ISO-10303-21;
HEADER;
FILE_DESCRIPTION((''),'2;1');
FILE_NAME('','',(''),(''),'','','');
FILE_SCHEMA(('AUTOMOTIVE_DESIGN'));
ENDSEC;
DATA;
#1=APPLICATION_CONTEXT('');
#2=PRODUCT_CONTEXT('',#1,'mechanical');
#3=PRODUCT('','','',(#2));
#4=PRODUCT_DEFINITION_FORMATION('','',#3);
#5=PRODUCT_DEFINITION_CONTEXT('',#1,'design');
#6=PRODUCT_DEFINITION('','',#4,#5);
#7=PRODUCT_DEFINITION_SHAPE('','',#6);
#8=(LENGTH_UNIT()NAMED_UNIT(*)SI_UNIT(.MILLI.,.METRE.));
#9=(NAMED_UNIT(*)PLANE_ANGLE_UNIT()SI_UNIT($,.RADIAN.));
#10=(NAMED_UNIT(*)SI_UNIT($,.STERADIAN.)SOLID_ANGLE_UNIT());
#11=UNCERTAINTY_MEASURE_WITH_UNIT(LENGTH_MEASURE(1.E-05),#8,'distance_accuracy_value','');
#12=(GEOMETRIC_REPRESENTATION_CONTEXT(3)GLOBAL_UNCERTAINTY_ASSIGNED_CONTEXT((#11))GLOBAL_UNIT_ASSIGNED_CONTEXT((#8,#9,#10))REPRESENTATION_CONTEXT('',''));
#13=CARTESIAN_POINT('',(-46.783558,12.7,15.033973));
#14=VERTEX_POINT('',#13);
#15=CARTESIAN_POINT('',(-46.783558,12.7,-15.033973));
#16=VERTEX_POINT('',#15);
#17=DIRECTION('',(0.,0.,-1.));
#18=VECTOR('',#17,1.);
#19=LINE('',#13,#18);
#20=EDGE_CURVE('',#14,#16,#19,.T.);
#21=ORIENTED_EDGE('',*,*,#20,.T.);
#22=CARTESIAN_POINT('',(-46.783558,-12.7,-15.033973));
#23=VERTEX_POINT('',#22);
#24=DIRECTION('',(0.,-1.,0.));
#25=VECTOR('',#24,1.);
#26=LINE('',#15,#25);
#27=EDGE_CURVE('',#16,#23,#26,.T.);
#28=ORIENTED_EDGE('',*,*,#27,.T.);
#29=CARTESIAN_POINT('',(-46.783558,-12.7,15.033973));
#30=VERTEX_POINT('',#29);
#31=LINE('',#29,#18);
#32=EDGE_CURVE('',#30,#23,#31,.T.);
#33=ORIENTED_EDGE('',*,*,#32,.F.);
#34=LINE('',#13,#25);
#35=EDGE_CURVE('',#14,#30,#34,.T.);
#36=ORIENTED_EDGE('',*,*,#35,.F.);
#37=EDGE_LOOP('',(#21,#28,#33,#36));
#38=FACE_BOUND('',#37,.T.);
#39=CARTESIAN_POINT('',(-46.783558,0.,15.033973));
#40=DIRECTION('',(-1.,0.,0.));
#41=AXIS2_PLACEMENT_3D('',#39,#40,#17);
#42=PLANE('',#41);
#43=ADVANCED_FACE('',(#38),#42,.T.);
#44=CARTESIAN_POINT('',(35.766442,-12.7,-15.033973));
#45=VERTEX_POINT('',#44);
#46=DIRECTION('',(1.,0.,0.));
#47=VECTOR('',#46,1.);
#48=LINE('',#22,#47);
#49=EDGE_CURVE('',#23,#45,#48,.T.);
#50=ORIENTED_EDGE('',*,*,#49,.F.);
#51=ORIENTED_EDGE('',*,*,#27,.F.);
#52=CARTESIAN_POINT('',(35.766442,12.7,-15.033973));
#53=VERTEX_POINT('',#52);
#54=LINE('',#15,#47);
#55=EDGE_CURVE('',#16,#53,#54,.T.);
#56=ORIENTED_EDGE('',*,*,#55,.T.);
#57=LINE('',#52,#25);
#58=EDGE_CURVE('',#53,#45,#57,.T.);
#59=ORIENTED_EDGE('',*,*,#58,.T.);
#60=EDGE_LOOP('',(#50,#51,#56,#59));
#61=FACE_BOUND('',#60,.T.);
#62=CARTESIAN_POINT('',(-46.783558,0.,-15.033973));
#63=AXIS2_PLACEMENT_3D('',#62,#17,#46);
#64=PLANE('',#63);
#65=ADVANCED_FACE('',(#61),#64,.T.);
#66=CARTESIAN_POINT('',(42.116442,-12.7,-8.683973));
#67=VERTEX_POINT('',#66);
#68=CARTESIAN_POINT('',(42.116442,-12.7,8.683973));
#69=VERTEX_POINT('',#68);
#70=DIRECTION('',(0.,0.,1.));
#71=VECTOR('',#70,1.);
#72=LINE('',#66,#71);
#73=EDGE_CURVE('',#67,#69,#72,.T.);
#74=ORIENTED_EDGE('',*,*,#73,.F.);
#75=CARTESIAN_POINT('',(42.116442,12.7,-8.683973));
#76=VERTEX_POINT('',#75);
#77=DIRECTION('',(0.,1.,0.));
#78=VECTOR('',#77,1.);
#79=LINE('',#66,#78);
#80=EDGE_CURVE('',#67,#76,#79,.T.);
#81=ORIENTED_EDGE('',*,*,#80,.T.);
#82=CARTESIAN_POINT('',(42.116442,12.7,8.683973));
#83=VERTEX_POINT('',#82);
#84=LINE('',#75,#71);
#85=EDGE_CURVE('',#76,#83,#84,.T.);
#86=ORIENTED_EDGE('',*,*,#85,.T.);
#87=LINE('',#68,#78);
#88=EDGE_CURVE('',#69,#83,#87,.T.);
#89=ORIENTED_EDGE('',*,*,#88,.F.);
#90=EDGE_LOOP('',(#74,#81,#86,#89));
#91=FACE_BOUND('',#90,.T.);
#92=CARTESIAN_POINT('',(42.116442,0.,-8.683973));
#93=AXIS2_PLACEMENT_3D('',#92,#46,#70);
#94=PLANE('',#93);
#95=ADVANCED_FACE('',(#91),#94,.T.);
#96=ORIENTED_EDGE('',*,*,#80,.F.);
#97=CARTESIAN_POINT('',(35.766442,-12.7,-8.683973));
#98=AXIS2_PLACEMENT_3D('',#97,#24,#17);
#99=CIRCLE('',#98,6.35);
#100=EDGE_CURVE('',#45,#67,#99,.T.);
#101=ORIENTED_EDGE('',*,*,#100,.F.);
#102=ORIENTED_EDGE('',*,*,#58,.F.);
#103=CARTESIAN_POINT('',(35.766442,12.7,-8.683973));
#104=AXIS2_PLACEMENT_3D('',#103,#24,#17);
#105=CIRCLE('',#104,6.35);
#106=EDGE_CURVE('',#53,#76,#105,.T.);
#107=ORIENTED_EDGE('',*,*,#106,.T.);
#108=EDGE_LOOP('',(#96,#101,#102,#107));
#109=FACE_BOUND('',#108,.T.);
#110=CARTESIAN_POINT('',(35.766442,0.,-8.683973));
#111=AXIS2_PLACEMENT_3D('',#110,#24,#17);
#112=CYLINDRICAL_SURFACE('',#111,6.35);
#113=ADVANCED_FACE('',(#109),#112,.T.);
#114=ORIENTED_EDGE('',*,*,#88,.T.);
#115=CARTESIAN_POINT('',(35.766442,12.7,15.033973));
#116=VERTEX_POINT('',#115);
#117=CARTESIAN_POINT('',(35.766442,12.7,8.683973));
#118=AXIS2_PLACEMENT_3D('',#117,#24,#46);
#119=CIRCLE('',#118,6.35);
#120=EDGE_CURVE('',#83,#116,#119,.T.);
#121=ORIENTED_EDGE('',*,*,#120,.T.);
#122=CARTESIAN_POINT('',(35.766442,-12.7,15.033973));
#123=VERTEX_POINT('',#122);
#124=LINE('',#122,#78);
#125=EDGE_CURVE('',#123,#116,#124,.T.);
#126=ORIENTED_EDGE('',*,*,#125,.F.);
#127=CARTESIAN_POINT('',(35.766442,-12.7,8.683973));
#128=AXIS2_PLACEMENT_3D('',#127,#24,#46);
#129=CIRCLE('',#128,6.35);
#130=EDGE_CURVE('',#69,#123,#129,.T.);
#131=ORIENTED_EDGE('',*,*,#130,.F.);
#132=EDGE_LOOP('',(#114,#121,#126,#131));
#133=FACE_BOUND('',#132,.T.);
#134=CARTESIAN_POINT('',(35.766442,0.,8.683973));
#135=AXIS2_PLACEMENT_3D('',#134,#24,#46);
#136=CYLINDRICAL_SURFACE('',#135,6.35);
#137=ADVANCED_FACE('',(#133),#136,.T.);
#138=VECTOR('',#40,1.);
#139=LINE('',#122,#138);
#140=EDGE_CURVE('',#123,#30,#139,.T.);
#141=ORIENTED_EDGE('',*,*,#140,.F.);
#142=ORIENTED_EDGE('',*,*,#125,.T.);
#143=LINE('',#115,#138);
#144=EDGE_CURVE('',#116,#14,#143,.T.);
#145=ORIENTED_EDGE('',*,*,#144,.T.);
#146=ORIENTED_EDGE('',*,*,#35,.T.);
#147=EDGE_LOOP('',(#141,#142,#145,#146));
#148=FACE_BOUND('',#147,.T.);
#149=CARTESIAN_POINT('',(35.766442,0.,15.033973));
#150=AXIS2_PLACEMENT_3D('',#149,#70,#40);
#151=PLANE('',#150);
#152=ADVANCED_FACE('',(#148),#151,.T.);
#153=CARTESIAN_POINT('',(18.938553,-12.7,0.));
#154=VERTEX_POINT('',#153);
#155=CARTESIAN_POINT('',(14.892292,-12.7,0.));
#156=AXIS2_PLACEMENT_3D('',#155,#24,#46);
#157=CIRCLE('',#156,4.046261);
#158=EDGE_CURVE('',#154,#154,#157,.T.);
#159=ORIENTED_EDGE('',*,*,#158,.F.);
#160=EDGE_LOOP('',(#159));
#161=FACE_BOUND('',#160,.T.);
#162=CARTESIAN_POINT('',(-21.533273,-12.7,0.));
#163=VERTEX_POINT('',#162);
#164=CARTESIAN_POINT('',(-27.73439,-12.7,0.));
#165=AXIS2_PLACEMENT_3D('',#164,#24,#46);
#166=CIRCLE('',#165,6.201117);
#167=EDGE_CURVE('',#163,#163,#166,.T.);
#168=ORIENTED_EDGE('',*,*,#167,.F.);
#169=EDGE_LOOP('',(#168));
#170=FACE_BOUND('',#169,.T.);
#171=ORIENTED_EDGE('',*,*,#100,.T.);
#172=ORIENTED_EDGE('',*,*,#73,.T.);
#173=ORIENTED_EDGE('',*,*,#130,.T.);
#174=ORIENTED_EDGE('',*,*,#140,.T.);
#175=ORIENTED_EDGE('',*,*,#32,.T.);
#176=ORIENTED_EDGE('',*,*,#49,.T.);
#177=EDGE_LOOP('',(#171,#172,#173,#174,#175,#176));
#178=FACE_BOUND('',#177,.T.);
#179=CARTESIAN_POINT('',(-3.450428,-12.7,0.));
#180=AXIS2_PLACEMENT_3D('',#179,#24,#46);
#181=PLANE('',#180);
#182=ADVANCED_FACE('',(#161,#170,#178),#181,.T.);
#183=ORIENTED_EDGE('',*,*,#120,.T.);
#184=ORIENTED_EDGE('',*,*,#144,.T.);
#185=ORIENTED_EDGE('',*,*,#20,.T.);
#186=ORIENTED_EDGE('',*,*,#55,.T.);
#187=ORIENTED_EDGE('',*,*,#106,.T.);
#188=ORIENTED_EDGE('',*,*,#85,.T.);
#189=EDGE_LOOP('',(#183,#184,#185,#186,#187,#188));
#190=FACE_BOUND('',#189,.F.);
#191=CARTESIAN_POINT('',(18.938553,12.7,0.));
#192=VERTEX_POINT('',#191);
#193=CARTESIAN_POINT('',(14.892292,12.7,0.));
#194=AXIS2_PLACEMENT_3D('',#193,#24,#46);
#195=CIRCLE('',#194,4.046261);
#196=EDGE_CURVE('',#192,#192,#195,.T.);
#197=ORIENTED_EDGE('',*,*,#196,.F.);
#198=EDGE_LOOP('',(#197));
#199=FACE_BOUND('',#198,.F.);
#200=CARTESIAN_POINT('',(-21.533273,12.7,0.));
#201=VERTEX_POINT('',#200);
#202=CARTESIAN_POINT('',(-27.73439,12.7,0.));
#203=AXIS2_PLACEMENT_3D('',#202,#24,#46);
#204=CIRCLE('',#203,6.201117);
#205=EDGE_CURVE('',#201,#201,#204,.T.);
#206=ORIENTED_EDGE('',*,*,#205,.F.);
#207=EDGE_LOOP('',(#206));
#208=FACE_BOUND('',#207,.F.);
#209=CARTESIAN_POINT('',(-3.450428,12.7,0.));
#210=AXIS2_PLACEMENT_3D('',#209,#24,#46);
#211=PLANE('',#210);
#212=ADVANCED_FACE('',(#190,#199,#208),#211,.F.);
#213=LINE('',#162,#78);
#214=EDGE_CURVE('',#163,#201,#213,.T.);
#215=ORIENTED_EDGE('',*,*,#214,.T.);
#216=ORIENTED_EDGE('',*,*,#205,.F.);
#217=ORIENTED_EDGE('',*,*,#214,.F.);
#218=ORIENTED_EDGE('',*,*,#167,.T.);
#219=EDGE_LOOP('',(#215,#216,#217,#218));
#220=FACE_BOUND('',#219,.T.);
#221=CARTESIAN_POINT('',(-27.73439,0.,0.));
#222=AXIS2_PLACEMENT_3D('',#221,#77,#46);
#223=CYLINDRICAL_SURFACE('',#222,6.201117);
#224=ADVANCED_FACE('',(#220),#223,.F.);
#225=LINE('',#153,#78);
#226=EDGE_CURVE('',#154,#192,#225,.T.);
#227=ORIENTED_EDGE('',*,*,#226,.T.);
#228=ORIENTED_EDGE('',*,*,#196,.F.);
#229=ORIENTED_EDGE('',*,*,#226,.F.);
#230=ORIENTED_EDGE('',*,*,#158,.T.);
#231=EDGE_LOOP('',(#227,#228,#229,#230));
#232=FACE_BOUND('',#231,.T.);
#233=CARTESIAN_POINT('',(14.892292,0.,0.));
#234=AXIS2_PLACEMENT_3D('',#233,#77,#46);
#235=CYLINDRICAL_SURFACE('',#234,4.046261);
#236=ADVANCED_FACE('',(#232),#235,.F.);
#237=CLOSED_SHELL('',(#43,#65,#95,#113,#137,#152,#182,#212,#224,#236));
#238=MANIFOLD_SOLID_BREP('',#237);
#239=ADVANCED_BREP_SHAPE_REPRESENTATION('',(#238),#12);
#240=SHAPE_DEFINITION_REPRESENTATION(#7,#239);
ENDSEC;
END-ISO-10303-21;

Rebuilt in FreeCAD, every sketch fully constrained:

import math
import FreeCAD as App
import Part
import Sketcher
Q = App.Units.Quantity

doc = App.newDocument("Part")
params = doc.addObject("Spreadsheet::Sheet", "Params")
for row, (alias, value) in enumerate([
    ("sketch1_radius", "0.25 in"),
    ("sketch1_width", "3.25 in"),
    ("pad1_length", "1 in"),
], start=1):
    params.set(f"A{row}", alias)
    params.set(f"B{row}", "=" + value)
    params.setAlias(f"B{row}", alias)

body = doc.addObject("PartDesign::Body", "Body")

# Sketch on XZ plane
sketch1 = body.newObject("Sketcher::SketchObject", "Sketch")
sketch1.AttachmentSupport = (doc.getObject("XZ_Plane"), [""])
sketch1.MapMode = "FlatFace"
sketch1.addGeometry(Part.LineSegment(App.Vector(35.8, 15, 0), App.Vector(-46.8, 15, 0)), False)
sketch1.addGeometry(Part.LineSegment(App.Vector(-46.8, 15, 0), App.Vector(-46.8, -15, 0)), False)
sketch1.addGeometry(Part.LineSegment(App.Vector(-46.8, -15, 0), App.Vector(35.8, -15, 0)), False)
sketch1.addGeometry(Part.ArcOfCircle(Part.Circle(App.Vector(35.8, -8.7, 0), App.Vector(0, 0, 1), 6.3), math.radians(-90), math.radians(0)), False)
sketch1.addGeometry(Part.LineSegment(App.Vector(42.1, -8.7, 0), App.Vector(42.1, 8.7, 0)), False)
sketch1.addGeometry(Part.ArcOfCircle(Part.Circle(App.Vector(35.8, 8.7, 0), App.Vector(0, 0, 1), 6.3), math.radians(0), math.radians(90)), False)
sketch1.addGeometry(Part.Circle(App.Vector(-27.7, 0, 0), App.Vector(0, 0, 1), 6.2), False)
sketch1.addGeometry(Part.Circle(App.Vector(14.9, 0, 0), App.Vector(0, 0, 1), 4), False)
sketch1.addConstraint(Sketcher.Constraint("Coincident", 0, 2, 1, 1))
sketch1.addConstraint(Sketcher.Constraint("Coincident", 1, 2, 2, 1))
sketch1.addConstraint(Sketcher.Constraint("Tangent", 2, 2, 3, 1))
sketch1.addConstraint(Sketcher.Constraint("Tangent", 3, 2, 4, 1))
sketch1.addConstraint(Sketcher.Constraint("Tangent", 4, 2, 5, 1))
sketch1.addConstraint(Sketcher.Constraint("Tangent", 5, 2, 0, 1))
sketch1.addConstraint(Sketcher.Constraint("Horizontal", 0))
sketch1.addConstraint(Sketcher.Constraint("Vertical", 1))
sketch1.addConstraint(Sketcher.Constraint("Horizontal", 2))
sketch1.addConstraint(Sketcher.Constraint("Vertical", 4))
sketch1.addConstraint(Sketcher.Constraint("Equal", 3, 5))
sketch1.addConstraint(Sketcher.Constraint("PointOnObject", 6, 3, -1))
sketch1.addConstraint(Sketcher.Constraint("PointOnObject", 7, 3, -1))
sketch1.addConstraint(Sketcher.Constraint("Radius", 3, Q("0.25 in")))
sketch1.addConstraint(Sketcher.Constraint("DistanceX", 0, 2, 0, 1, Q("3.25 in")))
sketch1.addConstraint(Sketcher.Constraint("Diameter", 7, Q("8.092522 mm")))
sketch1.addConstraint(Sketcher.Constraint("Diameter", 6, Q("12.402233 mm")))
sketch1.addConstraint(Sketcher.Constraint("DistanceY", 1, 2, 1, 1, Q("30.067947 mm")))
sketch1.addConstraint(Sketcher.Constraint("DistanceX", -1, 1, 3, 3, Q("35.766442 mm")))
sketch1.addConstraint(Sketcher.Constraint("DistanceX", 6, 3, -1, 1, Q("27.73439 mm")))
sketch1.addConstraint(Sketcher.Constraint("DistanceX", 7, 3, 3, 3, Q("20.87415 mm")))
sketch1.addConstraint(Sketcher.Constraint("DistanceY", 3, 3, -1, 1, Q("8.683973 mm")))
sketch1.setExpression("Constraints[13]", "Params.sketch1_radius")
sketch1.setExpression("Constraints[14]", "Params.sketch1_width")
pad1 = body.newObject("PartDesign::Pad", "Pad")
pad1.Profile = sketch1
pad1.setExpression("Length", "Params.pad1_length")
pad1.Midplane = True

doc.recompute()
